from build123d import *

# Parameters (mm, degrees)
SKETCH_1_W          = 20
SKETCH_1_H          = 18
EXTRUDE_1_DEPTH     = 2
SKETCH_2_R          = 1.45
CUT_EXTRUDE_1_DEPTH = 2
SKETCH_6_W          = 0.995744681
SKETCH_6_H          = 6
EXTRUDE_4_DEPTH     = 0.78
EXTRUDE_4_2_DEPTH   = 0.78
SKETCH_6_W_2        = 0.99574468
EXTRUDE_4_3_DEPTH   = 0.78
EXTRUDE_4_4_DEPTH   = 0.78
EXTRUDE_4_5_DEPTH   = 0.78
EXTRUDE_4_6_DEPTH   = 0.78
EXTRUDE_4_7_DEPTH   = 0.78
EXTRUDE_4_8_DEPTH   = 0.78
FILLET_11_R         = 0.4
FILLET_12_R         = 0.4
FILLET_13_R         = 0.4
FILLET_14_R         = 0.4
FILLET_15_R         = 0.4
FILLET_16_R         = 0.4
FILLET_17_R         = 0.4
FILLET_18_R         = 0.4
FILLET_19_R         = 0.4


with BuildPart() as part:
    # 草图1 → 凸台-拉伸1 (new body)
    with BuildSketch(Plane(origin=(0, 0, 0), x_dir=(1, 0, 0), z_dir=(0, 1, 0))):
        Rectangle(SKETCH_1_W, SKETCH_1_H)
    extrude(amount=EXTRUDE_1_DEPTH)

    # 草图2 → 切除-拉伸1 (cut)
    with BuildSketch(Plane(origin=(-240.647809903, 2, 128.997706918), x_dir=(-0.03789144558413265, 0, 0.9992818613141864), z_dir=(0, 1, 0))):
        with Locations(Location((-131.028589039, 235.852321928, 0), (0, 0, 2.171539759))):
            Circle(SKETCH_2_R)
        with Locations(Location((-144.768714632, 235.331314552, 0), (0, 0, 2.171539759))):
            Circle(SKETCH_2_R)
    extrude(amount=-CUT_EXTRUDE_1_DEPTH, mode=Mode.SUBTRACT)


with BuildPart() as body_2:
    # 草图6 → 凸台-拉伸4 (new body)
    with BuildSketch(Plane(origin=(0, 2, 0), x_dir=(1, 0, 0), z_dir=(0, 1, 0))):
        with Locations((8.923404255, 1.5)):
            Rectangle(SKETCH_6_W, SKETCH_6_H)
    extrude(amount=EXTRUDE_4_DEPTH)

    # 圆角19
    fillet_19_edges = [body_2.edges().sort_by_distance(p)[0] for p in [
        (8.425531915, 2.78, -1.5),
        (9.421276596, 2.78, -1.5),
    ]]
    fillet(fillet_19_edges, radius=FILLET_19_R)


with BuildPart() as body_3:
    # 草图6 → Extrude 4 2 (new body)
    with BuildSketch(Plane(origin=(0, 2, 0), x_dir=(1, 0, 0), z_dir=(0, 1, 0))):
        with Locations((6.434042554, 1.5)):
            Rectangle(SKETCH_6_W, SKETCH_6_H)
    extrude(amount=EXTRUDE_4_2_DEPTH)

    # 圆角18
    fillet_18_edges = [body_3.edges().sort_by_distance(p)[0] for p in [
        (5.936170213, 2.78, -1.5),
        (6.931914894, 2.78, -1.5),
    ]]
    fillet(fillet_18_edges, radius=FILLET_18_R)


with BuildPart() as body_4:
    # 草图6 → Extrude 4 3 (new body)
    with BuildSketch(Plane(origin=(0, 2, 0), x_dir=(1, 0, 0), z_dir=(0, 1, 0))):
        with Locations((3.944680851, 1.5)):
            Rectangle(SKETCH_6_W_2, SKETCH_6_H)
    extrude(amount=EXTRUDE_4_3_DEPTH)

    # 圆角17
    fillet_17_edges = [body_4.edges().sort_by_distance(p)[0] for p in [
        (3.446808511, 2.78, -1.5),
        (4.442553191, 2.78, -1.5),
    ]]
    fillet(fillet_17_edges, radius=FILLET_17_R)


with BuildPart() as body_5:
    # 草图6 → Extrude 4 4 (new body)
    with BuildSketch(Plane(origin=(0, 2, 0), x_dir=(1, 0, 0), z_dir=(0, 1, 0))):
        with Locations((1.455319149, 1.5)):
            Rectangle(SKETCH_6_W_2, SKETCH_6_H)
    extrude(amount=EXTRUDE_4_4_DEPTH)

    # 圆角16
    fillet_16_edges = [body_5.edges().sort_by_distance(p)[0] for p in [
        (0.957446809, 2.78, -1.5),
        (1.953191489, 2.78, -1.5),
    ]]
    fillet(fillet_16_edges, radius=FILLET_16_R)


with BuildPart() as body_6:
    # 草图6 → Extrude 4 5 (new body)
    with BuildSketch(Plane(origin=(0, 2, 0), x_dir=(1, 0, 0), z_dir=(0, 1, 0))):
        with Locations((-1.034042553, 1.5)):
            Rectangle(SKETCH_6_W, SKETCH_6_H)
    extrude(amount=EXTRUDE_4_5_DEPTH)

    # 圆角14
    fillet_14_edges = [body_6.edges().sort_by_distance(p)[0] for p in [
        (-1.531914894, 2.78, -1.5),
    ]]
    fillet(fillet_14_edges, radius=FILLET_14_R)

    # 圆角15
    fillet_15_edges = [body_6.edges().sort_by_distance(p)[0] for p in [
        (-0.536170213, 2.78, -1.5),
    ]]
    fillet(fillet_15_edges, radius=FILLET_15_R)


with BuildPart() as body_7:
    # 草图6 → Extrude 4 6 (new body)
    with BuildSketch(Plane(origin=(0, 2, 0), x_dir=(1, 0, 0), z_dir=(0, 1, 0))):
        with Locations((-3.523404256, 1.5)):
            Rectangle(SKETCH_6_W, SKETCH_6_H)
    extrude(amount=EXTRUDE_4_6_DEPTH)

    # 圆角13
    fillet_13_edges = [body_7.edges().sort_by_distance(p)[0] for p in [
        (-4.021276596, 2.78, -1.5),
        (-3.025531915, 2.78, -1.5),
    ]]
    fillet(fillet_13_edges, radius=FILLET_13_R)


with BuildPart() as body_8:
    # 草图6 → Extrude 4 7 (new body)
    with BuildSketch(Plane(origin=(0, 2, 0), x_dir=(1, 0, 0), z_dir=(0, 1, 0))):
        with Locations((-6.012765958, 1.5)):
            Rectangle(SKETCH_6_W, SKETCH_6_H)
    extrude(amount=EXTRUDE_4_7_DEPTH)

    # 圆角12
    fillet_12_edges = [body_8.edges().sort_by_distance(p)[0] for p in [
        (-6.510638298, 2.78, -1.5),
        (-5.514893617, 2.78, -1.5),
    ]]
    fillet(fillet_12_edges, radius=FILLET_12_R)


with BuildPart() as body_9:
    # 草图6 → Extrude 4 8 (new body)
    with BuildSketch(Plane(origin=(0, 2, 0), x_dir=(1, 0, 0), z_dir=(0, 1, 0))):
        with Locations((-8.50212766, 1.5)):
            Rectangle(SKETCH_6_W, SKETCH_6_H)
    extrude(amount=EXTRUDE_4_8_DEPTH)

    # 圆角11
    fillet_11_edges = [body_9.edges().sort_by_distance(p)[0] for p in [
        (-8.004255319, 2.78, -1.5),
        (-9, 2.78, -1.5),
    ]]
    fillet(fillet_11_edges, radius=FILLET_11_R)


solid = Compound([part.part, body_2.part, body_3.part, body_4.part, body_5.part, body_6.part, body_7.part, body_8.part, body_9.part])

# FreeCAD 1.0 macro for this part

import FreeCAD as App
import Part
import Sketcher
from FreeCAD import Vector


def edges_at(feature, points):
    """Names of the edges that pass closest to the given points."""
    edges = feature.Shape.Edges
    near = lambda p: min(range(len(edges)), key=lambda i: edges[i].distToShape(Part.Vertex(*p))[0])
    return sorted({f"Edge{near(p) + 1}" for p in points})

doc = App.newDocument("Part")
params = doc.addObject("Spreadsheet::Sheet", "Params")
for row, (alias, value) in enumerate([
    ("sketch1_width", "20 mm"),
    ("sketch1_height", "18 mm"),
    ("pad1_length", "2 mm"),
    ("sketch2_diameter", "2.9 mm"),
    ("pocket1_length", "2 mm"),
    ("sketch3_height", "6 mm"),
    ("pad2_length", "0.78 mm"),
    ("fillet_radius", "0.4 mm"),
    ("sketch4_height", "6 mm"),
    ("pad3_length", "0.78 mm"),
    ("fillet2_radius", "0.4 mm"),
    ("sketch5_height", "6 mm"),
    ("pad4_length", "0.78 mm"),
    ("fillet3_radius", "0.4 mm"),
    ("sketch6_height", "6 mm"),
    ("pad5_length", "0.78 mm"),
    ("fillet4_radius", "0.4 mm"),
    ("sketch7_height", "6 mm"),
    ("pad6_length", "0.78 mm"),
    ("fillet5_radius", "0.4 mm"),
    ("fillet6_radius", "0.4 mm"),
    ("sketch8_height", "6 mm"),
    ("pad7_length", "0.78 mm"),
    ("fillet7_radius", "0.4 mm"),
    ("sketch9_height", "6 mm"),
    ("pad8_length", "0.78 mm"),
    ("fillet8_radius", "0.4 mm"),
    ("sketch10_height", "6 mm"),
    ("pad9_length", "0.78 mm"),
    ("fillet9_radius", "0.4 mm"),
], start=1):
    params.set(f"A{row}", alias)
    params.set(f"B{row}", "=" + value)
    params.setAlias(f"B{row}", alias)

body = doc.addObject("PartDesign::Body", "Body")

sketch1 = body.newObject("Sketcher::SketchObject", "Sketch")
sketch1.AttachmentSupport = (doc.getObject("XZ_Plane"), [""])
sketch1.MapMode = "FlatFace"
sketch1.addGeometry([
    Part.LineSegment(Vector(-10, -9, 0), Vector(-10, 9, 0)),
    Part.LineSegment(Vector(-10, 9, 0), Vector(10, 9, 0)),
    Part.LineSegment(Vector(10, 9, 0), Vector(10, -9, 0)),
    Part.LineSegment(Vector(10, -9, 0), Vector(-10, -9, 0)),
], False)
sketch1.addConstraint([
    Sketcher.Constraint("Coincident", 0, 2, 1, 1),
    Sketcher.Constraint("Coincident", 1, 2, 2, 1),
    Sketcher.Constraint("Coincident", 2, 2, 3, 1),
    Sketcher.Constraint("Coincident", 3, 2, 0, 1),
    Sketcher.Constraint("Vertical", 0),
    Sketcher.Constraint("Horizontal", 1),
    Sketcher.Constraint("Vertical", 2),
    Sketcher.Constraint("Horizontal", 3),
    Sketcher.Constraint("Symmetric", 0, 2, 2, 2, -1, 1),
    Sketcher.Constraint("DistanceX", 1, 1, 1, 2, 20.0),
    Sketcher.Constraint("DistanceY", 0, 1, 0, 2, 18.0),
])
sketch1.setExpression("Constraints[9]", "Params.sketch1_width")
sketch1.setExpression("Constraints[10]", "Params.sketch1_height")
pad1 = body.newObject("PartDesign::Pad", "Pad")
pad1.Profile = sketch1
pad1.setExpression("Length", "Params.pad1_length")
pad1.Reversed = True

sketch2 = body.newObject("Sketcher::SketchObject", "Sketch001")
sketch2.AttachmentSupport = (doc.getObject("XZ_Plane"), [""])
sketch2.MapMode = "FlatFace"
sketch2.AttachmentOffset = App.Placement(Vector(0, 0, -2), App.Rotation())
sketch2.addGeometry([
    Part.Circle(Vector(0, 7, 0), Vector(0, 0, 1), 1.45),
    Part.Circle(Vector(0, -6.75, 0), Vector(0, 0, 1), 1.45),
], False)
sketch2.addConstraint([
    Sketcher.Constraint("Equal", 0, 1),
    Sketcher.Constraint("PointOnObject", 0, 3, -2),
    Sketcher.Constraint("PointOnObject", 1, 3, -2),
    Sketcher.Constraint("Diameter", 0, 2.9),
    Sketcher.Constraint("DistanceY", -1, 1, 0, 3, 7.0),
    Sketcher.Constraint("DistanceY", 1, 3, -1, 1, 6.75),
])
sketch2.setExpression("Constraints[3]", "Params.sketch2_diameter")
pocket1 = body.newObject("PartDesign::Pocket", "Pocket")
pocket1.Profile = sketch2
pocket1.setExpression("Length", "Params.pocket1_length")
pocket1.Reversed = True
body2 = doc.addObject("PartDesign::Body", "Body001")

sketch3 = body2.newObject("Sketcher::SketchObject", "Sketch002")
sketch3.AttachmentSupport = (doc.getObject("XZ_Plane001"), [""])
sketch3.MapMode = "FlatFace"
sketch3.AttachmentOffset = App.Placement(Vector(0, 0, -2), App.Rotation())
sketch3.addGeometry([
    Part.LineSegment(Vector(8.425532, -4.5, 0), Vector(8.425532, 1.5, 0)),
    Part.LineSegment(Vector(8.425532, 1.5, 0), Vector(9.421277, 1.5, 0)),
    Part.LineSegment(Vector(9.421277, 1.5, 0), Vector(9.421277, -4.5, 0)),
    Part.LineSegment(Vector(9.421277, -4.5, 0), Vector(8.425532, -4.5, 0)),
], False)
sketch3.addConstraint([
    Sketcher.Constraint("Coincident", 0, 2, 1, 1),
    Sketcher.Constraint("Coincident", 1, 2, 2, 1),
    Sketcher.Constraint("Coincident", 2, 2, 3, 1),
    Sketcher.Constraint("Coincident", 3, 2, 0, 1),
    Sketcher.Constraint("Vertical", 0),
    Sketcher.Constraint("Horizontal", 1),
    Sketcher.Constraint("Vertical", 2),
    Sketcher.Constraint("Horizontal", 3),
    Sketcher.Constraint("DistanceY", 0, 1, 0, 2, 6.0),
    Sketcher.Constraint("DistanceY", -1, 1, 0, 2, 1.5),
    Sketcher.Constraint("DistanceX", 1, 1, 1, 2, 0.995745),
    Sketcher.Constraint("DistanceX", -1, 1, 0, 2, 8.425532),
])
sketch3.setExpression("Constraints[8]", "Params.sketch3_height")
pad2 = body2.newObject("PartDesign::Pad", "Pad001")
pad2.Profile = sketch3
pad2.setExpression("Length", "Params.pad2_length")
pad2.Reversed = True
doc.recompute()

fillet = body2.newObject("PartDesign::Fillet", "Fillet")
fillet.Base = (pad2, edges_at(pad2, [(8.426, 2.78, -1.5), (9.421, 2.78, -1.5)]))
fillet.setExpression("Radius", "Params.fillet_radius")
body3 = doc.addObject("PartDesign::Body", "Body002")

sketch4 = body3.newObject("Sketcher::SketchObject", "Sketch003")
sketch4.AttachmentSupport = (doc.getObject("XZ_Plane002"), [""])
sketch4.MapMode = "FlatFace"
sketch4.AttachmentOffset = App.Placement(Vector(0, 0, -2), App.Rotation())
sketch4.addGeometry([
    Part.LineSegment(Vector(5.93617, -4.5, 0), Vector(5.93617, 1.5, 0)),
    Part.LineSegment(Vector(5.93617, 1.5, 0), Vector(6.931915, 1.5, 0)),
    Part.LineSegment(Vector(6.931915, 1.5, 0), Vector(6.931915, -4.5, 0)),
    Part.LineSegment(Vector(6.931915, -4.5, 0), Vector(5.93617, -4.5, 0)),
], False)
sketch4.addConstraint([
    Sketcher.Constraint("Coincident", 0, 2, 1, 1),
    Sketcher.Constraint("Coincident", 1, 2, 2, 1),
    Sketcher.Constraint("Coincident", 2, 2, 3, 1),
    Sketcher.Constraint("Coincident", 3, 2, 0, 1),
    Sketcher.Constraint("Vertical", 0),
    Sketcher.Constraint("Horizontal", 1),
    Sketcher.Constraint("Vertical", 2),
    Sketcher.Constraint("Horizontal", 3),
    Sketcher.Constraint("DistanceY", 0, 1, 0, 2, 6.0),
    Sketcher.Constraint("DistanceY", -1, 1, 0, 2, 1.5),
    Sketcher.Constraint("DistanceX", 1, 1, 1, 2, 0.995745),
    Sketcher.Constraint("DistanceX", -1, 1, 0, 2, 5.93617),
])
sketch4.setExpression("Constraints[8]", "Params.sketch4_height")
pad3 = body3.newObject("PartDesign::Pad", "Pad002")
pad3.Profile = sketch4
pad3.setExpression("Length", "Params.pad3_length")
pad3.Reversed = True
doc.recompute()

fillet2 = body3.newObject("PartDesign::Fillet", "Fillet001")
fillet2.Base = (pad3, edges_at(pad3, [(5.936, 2.78, -1.5), (6.932, 2.78, -1.5)]))
fillet2.setExpression("Radius", "Params.fillet2_radius")
body4 = doc.addObject("PartDesign::Body", "Body003")

sketch5 = body4.newObject("Sketcher::SketchObject", "Sketch004")
sketch5.AttachmentSupport = (doc.getObject("XZ_Plane003"), [""])
sketch5.MapMode = "FlatFace"
sketch5.AttachmentOffset = App.Placement(Vector(0, 0, -2), App.Rotation())
sketch5.addGeometry([
    Part.LineSegment(Vector(3.446809, -4.5, 0), Vector(3.446809, 1.5, 0)),
    Part.LineSegment(Vector(3.446809, 1.5, 0), Vector(4.442553, 1.5, 0)),
    Part.LineSegment(Vector(4.442553, 1.5, 0), Vector(4.442553, -4.5, 0)),
    Part.LineSegment(Vector(4.442553, -4.5, 0), Vector(3.446809, -4.5, 0)),
], False)
sketch5.addConstraint([
    Sketcher.Constraint("Coincident", 0, 2, 1, 1),
    Sketcher.Constraint("Coincident", 1, 2, 2, 1),
    Sketcher.Constraint("Coincident", 2, 2, 3, 1),
    Sketcher.Constraint("Coincident", 3, 2, 0, 1),
    Sketcher.Constraint("Vertical", 0),
    Sketcher.Constraint("Horizontal", 1),
    Sketcher.Constraint("Vertical", 2),
    Sketcher.Constraint("Horizontal", 3),
    Sketcher.Constraint("DistanceY", 0, 1, 0, 2, 6.0),
    Sketcher.Constraint("DistanceY", -1, 1, 0, 2, 1.5),
    Sketcher.Constraint("DistanceX", 1, 1, 1, 2, 0.995745),
    Sketcher.Constraint("DistanceX", -1, 1, 0, 2, 3.446809),
])
sketch5.setExpression("Constraints[8]", "Params.sketch5_height")
pad4 = body4.newObject("PartDesign::Pad", "Pad003")
pad4.Profile = sketch5
pad4.setExpression("Length", "Params.pad4_length")
pad4.Reversed = True
doc.recompute()

fillet3 = body4.newObject("PartDesign::Fillet", "Fillet002")
fillet3.Base = (pad4, edges_at(pad4, [(3.447, 2.78, -1.5), (4.443, 2.78, -1.5)]))
fillet3.setExpression("Radius", "Params.fillet3_radius")
body5 = doc.addObject("PartDesign::Body", "Body004")

sketch6 = body5.newObject("Sketcher::SketchObject", "Sketch005")
sketch6.AttachmentSupport = (doc.getObject("XZ_Plane004"), [""])
sketch6.MapMode = "FlatFace"
sketch6.AttachmentOffset = App.Placement(Vector(0, 0, -2), App.Rotation())
sketch6.addGeometry([
    Part.LineSegment(Vector(0.957447, -4.5, 0), Vector(0.957447, 1.5, 0)),
    Part.LineSegment(Vector(0.957447, 1.5, 0), Vector(1.953191, 1.5, 0)),
    Part.LineSegment(Vector(1.953191, 1.5, 0), Vector(1.953191, -4.5, 0)),
    Part.LineSegment(Vector(1.953191, -4.5, 0), Vector(0.957447, -4.5, 0)),
], False)
sketch6.addConstraint([
    Sketcher.Constraint("Coincident", 0, 2, 1, 1),
    Sketcher.Constraint("Coincident", 1, 2, 2, 1),
    Sketcher.Constraint("Coincident", 2, 2, 3, 1),
    Sketcher.Constraint("Coincident", 3, 2, 0, 1),
    Sketcher.Constraint("Vertical", 0),
    Sketcher.Constraint("Horizontal", 1),
    Sketcher.Constraint("Vertical", 2),
    Sketcher.Constraint("Horizontal", 3),
    Sketcher.Constraint("DistanceY", 0, 1, 0, 2, 6.0),
    Sketcher.Constraint("DistanceY", -1, 1, 0, 2, 1.5),
    Sketcher.Constraint("DistanceX", 1, 1, 1, 2, 0.995745),
    Sketcher.Constraint("DistanceX", -1, 1, 1, 2, 1.953191),
])
sketch6.setExpression("Constraints[8]", "Params.sketch6_height")
pad5 = body5.newObject("PartDesign::Pad", "Pad004")
pad5.Profile = sketch6
pad5.setExpression("Length", "Params.pad5_length")
pad5.Reversed = True
doc.recompute()

fillet4 = body5.newObject("PartDesign::Fillet", "Fillet003")
fillet4.Base = (pad5, edges_at(pad5, [(0.957, 2.78, -1.5), (1.953, 2.78, -1.5)]))
fillet4.setExpression("Radius", "Params.fillet4_radius")
body6 = doc.addObject("PartDesign::Body", "Body005")

sketch7 = body6.newObject("Sketcher::SketchObject", "Sketch006")
sketch7.AttachmentSupport = (doc.getObject("XZ_Plane005"), [""])
sketch7.MapMode = "FlatFace"
sketch7.AttachmentOffset = App.Placement(Vector(0, 0, -2), App.Rotation())
sketch7.addGeometry([
    Part.LineSegment(Vector(-1.531915, -4.5, 0), Vector(-1.531915, 1.5, 0)),
    Part.LineSegment(Vector(-1.531915, 1.5, 0), Vector(-0.53617, 1.5, 0)),
    Part.LineSegment(Vector(-0.53617, 1.5, 0), Vector(-0.53617, -4.5, 0)),
    Part.LineSegment(Vector(-0.53617, -4.5, 0), Vector(-1.531915, -4.5, 0)),
], False)
sketch7.addConstraint([
    Sketcher.Constraint("Coincident", 0, 2, 1, 1),
    Sketcher.Constraint("Coincident", 1, 2, 2, 1),
    Sketcher.Constraint("Coincident", 2, 2, 3, 1),
    Sketcher.Constraint("Coincident", 3, 2, 0, 1),
    Sketcher.Constraint("Vertical", 0),
    Sketcher.Constraint("Horizontal", 1),
    Sketcher.Constraint("Vertical", 2),
    Sketcher.Constraint("Horizontal", 3),
    Sketcher.Constraint("DistanceY", 0, 1, 0, 2, 6.0),
    Sketcher.Constraint("DistanceY", -1, 1, 0, 2, 1.5),
    Sketcher.Constraint("DistanceX", 1, 1, 1, 2, 0.995745),
    Sketcher.Constraint("DistanceX", 1, 2, -1, 1, 0.53617),
])
sketch7.setExpression("Constraints[8]", "Params.sketch7_height")
pad6 = body6.newObject("PartDesign::Pad", "Pad005")
pad6.Profile = sketch7
pad6.setExpression("Length", "Params.pad6_length")
pad6.Reversed = True
doc.recompute()

fillet5 = body6.newObject("PartDesign::Fillet", "Fillet004")
fillet5.Base = (pad6, edges_at(pad6, [(-1.532, 2.78, -1.5)]))
fillet5.setExpression("Radius", "Params.fillet5_radius")
doc.recompute()

fillet6 = body6.newObject("PartDesign::Fillet", "Fillet005")
fillet6.Base = (fillet5, edges_at(fillet5, [(-0.536, 2.78, -1.5)]))
fillet6.setExpression("Radius", "Params.fillet6_radius")
body7 = doc.addObject("PartDesign::Body", "Body006")

sketch8 = body7.newObject("Sketcher::SketchObject", "Sketch007")
sketch8.AttachmentSupport = (doc.getObject("XZ_Plane006"), [""])
sketch8.MapMode = "FlatFace"
sketch8.AttachmentOffset = App.Placement(Vector(0, 0, -2), App.Rotation())
sketch8.addGeometry([
    Part.LineSegment(Vector(-4.021277, -4.5, 0), Vector(-4.021277, 1.5, 0)),
    Part.LineSegment(Vector(-4.021277, 1.5, 0), Vector(-3.025532, 1.5, 0)),
    Part.LineSegment(Vector(-3.025532, 1.5, 0), Vector(-3.025532, -4.5, 0)),
    Part.LineSegment(Vector(-3.025532, -4.5, 0), Vector(-4.021277, -4.5, 0)),
], False)
sketch8.addConstraint([
    Sketcher.Constraint("Coincident", 0, 2, 1, 1),
    Sketcher.Constraint("Coincident", 1, 2, 2, 1),
    Sketcher.Constraint("Coincident", 2, 2, 3, 1),
    Sketcher.Constraint("Coincident", 3, 2, 0, 1),
    Sketcher.Constraint("Vertical", 0),
    Sketcher.Constraint("Horizontal", 1),
    Sketcher.Constraint("Vertical", 2),
    Sketcher.Constraint("Horizontal", 3),
    Sketcher.Constraint("DistanceY", 0, 1, 0, 2, 6.0),
    Sketcher.Constraint("DistanceY", -1, 1, 0, 2, 1.5),
    Sketcher.Constraint("DistanceX", 1, 1, 1, 2, 0.995745),
    Sketcher.Constraint("DistanceX", 1, 2, -1, 1, 3.025532),
])
sketch8.setExpression("Constraints[8]", "Params.sketch8_height")
pad7 = body7.newObject("PartDesign::Pad", "Pad006")
pad7.Profile = sketch8
pad7.setExpression("Length", "Params.pad7_length")
pad7.Reversed = True
doc.recompute()

fillet7 = body7.newObject("PartDesign::Fillet", "Fillet006")
fillet7.Base = (pad7, edges_at(pad7, [(-4.021, 2.78, -1.5), (-3.026, 2.78, -1.5)]))
fillet7.setExpression("Radius", "Params.fillet7_radius")
body8 = doc.addObject("PartDesign::Body", "Body007")

sketch9 = body8.newObject("Sketcher::SketchObject", "Sketch008")
sketch9.AttachmentSupport = (doc.getObject("XZ_Plane007"), [""])
sketch9.MapMode = "FlatFace"
sketch9.AttachmentOffset = App.Placement(Vector(0, 0, -2), App.Rotation())
sketch9.addGeometry([
    Part.LineSegment(Vector(-6.510638, -4.5, 0), Vector(-6.510638, 1.5, 0)),
    Part.LineSegment(Vector(-6.510638, 1.5, 0), Vector(-5.514894, 1.5, 0)),
    Part.LineSegment(Vector(-5.514894, 1.5, 0), Vector(-5.514894, -4.5, 0)),
    Part.LineSegment(Vector(-5.514894, -4.5, 0), Vector(-6.510638, -4.5, 0)),
], False)
sketch9.addConstraint([
    Sketcher.Constraint("Coincident", 0, 2, 1, 1),
    Sketcher.Constraint("Coincident", 1, 2, 2, 1),
    Sketcher.Constraint("Coincident", 2, 2, 3, 1),
    Sketcher.Constraint("Coincident", 3, 2, 0, 1),
    Sketcher.Constraint("Vertical", 0),
    Sketcher.Constraint("Horizontal", 1),
    Sketcher.Constraint("Vertical", 2),
    Sketcher.Constraint("Horizontal", 3),
    Sketcher.Constraint("DistanceY", 0, 1, 0, 2, 6.0),
    Sketcher.Constraint("DistanceY", -1, 1, 0, 2, 1.5),
    Sketcher.Constraint("DistanceX", 1, 1, 1, 2, 0.995745),
    Sketcher.Constraint("DistanceX", 0, 2, -1, 1, 6.510638),
])
sketch9.setExpression("Constraints[8]", "Params.sketch9_height")
pad8 = body8.newObject("PartDesign::Pad", "Pad007")
pad8.Profile = sketch9
pad8.setExpression("Length", "Params.pad8_length")
pad8.Reversed = True
doc.recompute()

fillet8 = body8.newObject("PartDesign::Fillet", "Fillet007")
fillet8.Base = (pad8, edges_at(pad8, [(-6.511, 2.78, -1.5), (-5.515, 2.78, -1.5)]))
fillet8.setExpression("Radius", "Params.fillet8_radius")
body9 = doc.addObject("PartDesign::Body", "Body008")

sketch10 = body9.newObject("Sketcher::SketchObject", "Sketch009")
sketch10.AttachmentSupport = (doc.getObject("XZ_Plane008"), [""])
sketch10.MapMode = "FlatFace"
sketch10.AttachmentOffset = App.Placement(Vector(0, 0, -2), App.Rotation())
sketch10.addGeometry([
    Part.LineSegment(Vector(-9, -4.5, 0), Vector(-9, 1.5, 0)),
    Part.LineSegment(Vector(-9, 1.5, 0), Vector(-8.004255, 1.5, 0)),
    Part.LineSegment(Vector(-8.004255, 1.5, 0), Vector(-8.004255, -4.5, 0)),
    Part.LineSegment(Vector(-8.004255, -4.5, 0), Vector(-9, -4.5, 0)),
], False)
sketch10.addConstraint([
    Sketcher.Constraint("Coincident", 0, 2, 1, 1),
    Sketcher.Constraint("Coincident", 1, 2, 2, 1),
    Sketcher.Constraint("Coincident", 2, 2, 3, 1),
    Sketcher.Constraint("Coincident", 3, 2, 0, 1),
    Sketcher.Constraint("Vertical", 0),
    Sketcher.Constraint("Horizontal", 1),
    Sketcher.Constraint("Vertical", 2),
    Sketcher.Constraint("Horizontal", 3),
    Sketcher.Constraint("DistanceY", 0, 1, 0, 2, 6.0),
    Sketcher.Constraint("DistanceX", 0, 2, -1, 1, 9.0),
    Sketcher.Constraint("DistanceY", -1, 1, 0, 2, 1.5),
    Sketcher.Constraint("DistanceX", 1, 1, 1, 2, 0.995745),
])
sketch10.setExpression("Constraints[8]", "Params.sketch10_height")
pad9 = body9.newObject("PartDesign::Pad", "Pad008")
pad9.Profile = sketch10
pad9.setExpression("Length", "Params.pad9_length")
pad9.Reversed = True
doc.recompute()

fillet9 = body9.newObject("PartDesign::Fillet", "Fillet008")
fillet9.Base = (pad9, edges_at(pad9, [(-8.004, 2.78, -1.5), (-9, 2.78, -1.5)]))
fillet9.setExpression("Radius", "Params.fillet9_radius")

doc.recompute()
